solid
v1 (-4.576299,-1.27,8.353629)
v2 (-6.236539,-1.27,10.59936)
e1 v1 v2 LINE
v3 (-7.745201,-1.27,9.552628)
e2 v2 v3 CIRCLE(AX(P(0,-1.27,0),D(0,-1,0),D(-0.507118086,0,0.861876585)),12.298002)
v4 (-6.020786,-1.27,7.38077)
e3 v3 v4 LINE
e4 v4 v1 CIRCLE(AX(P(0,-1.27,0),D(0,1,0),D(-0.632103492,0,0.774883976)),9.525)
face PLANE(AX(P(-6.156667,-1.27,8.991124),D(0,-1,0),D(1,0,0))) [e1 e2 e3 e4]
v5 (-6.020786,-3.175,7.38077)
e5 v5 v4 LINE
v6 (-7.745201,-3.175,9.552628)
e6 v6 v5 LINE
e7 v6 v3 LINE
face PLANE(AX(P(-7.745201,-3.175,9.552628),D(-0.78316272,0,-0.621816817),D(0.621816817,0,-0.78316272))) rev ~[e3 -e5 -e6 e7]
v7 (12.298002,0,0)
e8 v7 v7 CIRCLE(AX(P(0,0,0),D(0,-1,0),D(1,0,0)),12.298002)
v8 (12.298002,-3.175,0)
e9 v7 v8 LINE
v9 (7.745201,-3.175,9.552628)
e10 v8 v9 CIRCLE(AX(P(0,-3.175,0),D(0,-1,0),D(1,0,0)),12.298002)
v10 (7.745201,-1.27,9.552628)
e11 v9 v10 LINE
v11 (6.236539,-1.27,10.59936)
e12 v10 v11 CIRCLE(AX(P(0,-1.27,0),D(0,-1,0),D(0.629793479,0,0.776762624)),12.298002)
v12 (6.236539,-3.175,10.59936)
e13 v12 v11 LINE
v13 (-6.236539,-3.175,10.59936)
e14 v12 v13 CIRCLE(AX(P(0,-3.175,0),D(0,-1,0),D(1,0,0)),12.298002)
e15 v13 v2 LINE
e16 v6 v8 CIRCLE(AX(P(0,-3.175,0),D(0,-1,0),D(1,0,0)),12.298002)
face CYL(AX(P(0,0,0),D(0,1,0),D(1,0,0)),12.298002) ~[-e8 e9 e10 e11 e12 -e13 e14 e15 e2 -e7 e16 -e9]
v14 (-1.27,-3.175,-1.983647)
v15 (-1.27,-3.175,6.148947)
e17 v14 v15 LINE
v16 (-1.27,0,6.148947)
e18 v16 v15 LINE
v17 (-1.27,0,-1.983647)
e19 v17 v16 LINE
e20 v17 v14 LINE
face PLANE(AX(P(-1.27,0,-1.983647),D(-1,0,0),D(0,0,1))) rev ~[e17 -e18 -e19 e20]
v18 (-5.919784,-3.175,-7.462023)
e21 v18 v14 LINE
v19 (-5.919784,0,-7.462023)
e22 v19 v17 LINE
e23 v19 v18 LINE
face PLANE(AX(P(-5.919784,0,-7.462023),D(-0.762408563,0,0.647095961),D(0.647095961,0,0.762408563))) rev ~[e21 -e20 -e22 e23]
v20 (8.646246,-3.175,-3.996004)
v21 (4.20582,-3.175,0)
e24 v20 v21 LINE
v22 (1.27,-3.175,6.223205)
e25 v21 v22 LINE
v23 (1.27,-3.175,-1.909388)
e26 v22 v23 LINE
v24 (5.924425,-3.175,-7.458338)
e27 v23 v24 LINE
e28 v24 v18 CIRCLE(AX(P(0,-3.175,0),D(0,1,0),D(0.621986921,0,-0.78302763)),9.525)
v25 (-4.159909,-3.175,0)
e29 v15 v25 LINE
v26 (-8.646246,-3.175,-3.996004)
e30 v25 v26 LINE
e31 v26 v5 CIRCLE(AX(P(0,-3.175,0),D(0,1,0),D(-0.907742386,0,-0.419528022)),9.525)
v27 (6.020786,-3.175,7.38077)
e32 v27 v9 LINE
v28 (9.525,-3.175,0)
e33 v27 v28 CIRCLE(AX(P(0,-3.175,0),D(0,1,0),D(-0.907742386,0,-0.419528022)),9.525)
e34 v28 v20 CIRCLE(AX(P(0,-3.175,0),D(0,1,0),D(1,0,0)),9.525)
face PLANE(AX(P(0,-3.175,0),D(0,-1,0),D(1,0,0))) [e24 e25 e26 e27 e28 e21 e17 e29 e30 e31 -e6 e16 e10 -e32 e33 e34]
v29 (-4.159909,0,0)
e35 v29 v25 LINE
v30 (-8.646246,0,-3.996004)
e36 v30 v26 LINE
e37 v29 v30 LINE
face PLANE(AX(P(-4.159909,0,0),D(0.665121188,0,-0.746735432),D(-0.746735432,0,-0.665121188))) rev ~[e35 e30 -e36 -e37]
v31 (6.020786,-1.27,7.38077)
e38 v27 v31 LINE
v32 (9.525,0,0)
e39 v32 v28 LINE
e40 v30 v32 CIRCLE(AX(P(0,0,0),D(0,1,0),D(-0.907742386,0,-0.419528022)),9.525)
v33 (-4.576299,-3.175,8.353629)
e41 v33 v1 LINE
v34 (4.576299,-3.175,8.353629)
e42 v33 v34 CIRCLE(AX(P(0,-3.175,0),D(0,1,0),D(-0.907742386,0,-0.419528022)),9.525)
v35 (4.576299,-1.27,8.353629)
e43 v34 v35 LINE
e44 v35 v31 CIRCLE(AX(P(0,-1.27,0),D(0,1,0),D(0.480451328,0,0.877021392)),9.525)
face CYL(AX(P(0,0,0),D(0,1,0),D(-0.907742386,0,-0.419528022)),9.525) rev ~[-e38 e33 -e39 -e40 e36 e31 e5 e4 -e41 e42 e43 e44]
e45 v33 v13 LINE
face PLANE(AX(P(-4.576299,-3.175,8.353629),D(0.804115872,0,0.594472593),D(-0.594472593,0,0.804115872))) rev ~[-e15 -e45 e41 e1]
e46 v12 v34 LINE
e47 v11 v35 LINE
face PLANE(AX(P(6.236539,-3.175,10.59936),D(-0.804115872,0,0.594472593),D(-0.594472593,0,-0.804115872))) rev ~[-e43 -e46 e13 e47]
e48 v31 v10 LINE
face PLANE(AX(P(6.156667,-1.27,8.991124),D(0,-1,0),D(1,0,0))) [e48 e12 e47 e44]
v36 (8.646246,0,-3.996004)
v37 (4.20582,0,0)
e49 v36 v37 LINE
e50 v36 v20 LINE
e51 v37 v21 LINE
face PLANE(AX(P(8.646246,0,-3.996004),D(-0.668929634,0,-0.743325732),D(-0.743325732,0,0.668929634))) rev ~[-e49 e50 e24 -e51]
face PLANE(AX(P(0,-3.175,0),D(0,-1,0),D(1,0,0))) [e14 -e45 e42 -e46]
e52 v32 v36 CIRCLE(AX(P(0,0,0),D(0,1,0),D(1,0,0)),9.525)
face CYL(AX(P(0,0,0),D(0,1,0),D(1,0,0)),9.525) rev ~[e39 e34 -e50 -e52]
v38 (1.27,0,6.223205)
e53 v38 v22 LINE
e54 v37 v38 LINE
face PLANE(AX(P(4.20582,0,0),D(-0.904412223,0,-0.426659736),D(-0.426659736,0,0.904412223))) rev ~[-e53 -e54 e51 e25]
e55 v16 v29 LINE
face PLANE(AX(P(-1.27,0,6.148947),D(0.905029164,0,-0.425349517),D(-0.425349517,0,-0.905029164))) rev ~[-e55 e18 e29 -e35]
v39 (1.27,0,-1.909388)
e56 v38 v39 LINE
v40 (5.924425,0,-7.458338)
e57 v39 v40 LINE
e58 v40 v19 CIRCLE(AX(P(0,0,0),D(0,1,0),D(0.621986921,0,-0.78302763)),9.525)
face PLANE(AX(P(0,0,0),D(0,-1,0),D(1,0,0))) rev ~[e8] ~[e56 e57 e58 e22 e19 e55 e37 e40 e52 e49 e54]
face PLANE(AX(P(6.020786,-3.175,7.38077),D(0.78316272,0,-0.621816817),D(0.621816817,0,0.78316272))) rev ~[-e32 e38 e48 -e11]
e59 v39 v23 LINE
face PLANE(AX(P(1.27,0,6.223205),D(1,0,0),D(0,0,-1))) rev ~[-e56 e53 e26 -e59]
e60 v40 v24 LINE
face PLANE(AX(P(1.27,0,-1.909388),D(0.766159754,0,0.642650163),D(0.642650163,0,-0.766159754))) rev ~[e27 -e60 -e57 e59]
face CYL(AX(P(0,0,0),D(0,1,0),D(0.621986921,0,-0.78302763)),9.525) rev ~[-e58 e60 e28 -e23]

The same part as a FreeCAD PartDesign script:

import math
import FreeCAD as App
import Part
import Sketcher

V = App.Vector
Q = App.Units.Quantity

doc = App.newDocument("Part")
body = doc.addObject("PartDesign::Body", "Body")

# Sketch on XZ plane
sketch1 = body.newObject("Sketcher::SketchObject", "Sketch")
sketch1.AttachmentSupport = (doc.getObject("XZ_Plane"), [""])
sketch1.MapMode = "FlatFace"
sketch1.addGeometry(Part.Circle(V(0, 0, 0), V(0, 0, 1), 12.3), False)
sketch1.addGeometry(Part.ArcOfCircle(Part.Circle(V(0, 0, 0), V(0, 0, 1), 9.5), math.radians(0), math.radians(205)), False)
sketch1.addGeometry(Part.ArcOfCircle(Part.Circle(V(0, 0, 0), V(0, 0, 1), 9.5), math.radians(-25), math.radians(0)), False)
sketch1.addGeometry(Part.LineSegment(V(8.6, -4, 0), V(4.2, 0, 0)), False)
sketch1.addGeometry(Part.LineSegment(V(4.2, 0, 0), V(1.3, 6.2, 0)), False)
sketch1.addGeometry(Part.LineSegment(V(1.3, 6.2, 0), V(1.3, -1.9, 0)), False)
sketch1.addGeometry(Part.LineSegment(V(1.3, -1.9, 0), V(5.9, -7.5, 0)), False)
sketch1.addGeometry(Part.ArcOfCircle(Part.Circle(V(0, 0, 0), V(0, 0, 1), 9.5), math.radians(-128), math.radians(-52)), False)
sketch1.addGeometry(Part.LineSegment(V(-5.9, -7.5, 0), V(-1.3, -2, 0)), False)
sketch1.addGeometry(Part.LineSegment(V(-1.3, -2, 0), V(-1.3, 6.1, 0)), False)
sketch1.addGeometry(Part.LineSegment(V(-1.3, 6.1, 0), V(-4.2, 0, 0)), False)
sketch1.addGeometry(Part.LineSegment(V(-4.2, 0, 0), V(-8.6, -4, 0)), False)
sketch1.addConstraint(Sketcher.Constraint("Tangent", 1, 1, 2, 2))
sketch1.addConstraint(Sketcher.Constraint("Coincident", 2, 1, 3, 1))
sketch1.addConstraint(Sketcher.Constraint("Coincident", 3, 2, 4, 1))
sketch1.addConstraint(Sketcher.Constraint("Coincident", 4, 2, 5, 1))
sketch1.addConstraint(Sketcher.Constraint("Coincident", 5, 2, 6, 1))
sketch1.addConstraint(Sketcher.Constraint("Coincident", 6, 2, 7, 2))
sketch1.addConstraint(Sketcher.Constraint("Coincident", 7, 1, 8, 1))
sketch1.addConstraint(Sketcher.Constraint("Coincident", 8, 2, 9, 1))
sketch1.addConstraint(Sketcher.Constraint("Coincident", 9, 2, 10, 1))
sketch1.addConstraint(Sketcher.Constraint("Coincident", 10, 2, 11, 1))
sketch1.addConstraint(Sketcher.Constraint("Coincident", 11, 2, 1, 2))
sketch1.addConstraint(Sketcher.Constraint("Vertical", 5))
sketch1.addConstraint(Sketcher.Constraint("Vertical", 9))
sketch1.addConstraint(Sketcher.Constraint("Coincident", 0, 3, -1, 1))
sketch1.addConstraint(Sketcher.Constraint("Coincident", 1, 3, -1, 1))
sketch1.addConstraint(Sketcher.Constraint("Coincident", 7, 3, -1, 1))
sketch1.addConstraint(Sketcher.Constraint("Equal", 1, 2))
sketch1.addConstraint(Sketcher.Constraint("Equal", 2, 7))
sketch1.addConstraint(Sketcher.Constraint("PointOnObject", 1, 1, -1))
sketch1.addConstraint(Sketcher.Constraint("PointOnObject", 3, 2, -1))
sketch1.addConstraint(Sketcher.Constraint("PointOnObject", 10, 2, -1))
sketch1.addConstraint(Sketcher.Constraint("Horizontal", 2, 1, 11, 2))
sketch1.addConstraint(Sketcher.Constraint("Equal", 5, 9))
sketch1.addConstraint(Sketcher.Constraint("Radius", 1, Q("0.375 in")))
sketch1.addConstraint(Sketcher.Constraint("DistanceX", 8, 2, 5, 2, Q("0.1 in")))
sketch1.addConstraint(Sketcher.Constraint("DistanceX", -1, 1, 4, 2, Q("0.05 in")))
sketch1.addConstraint(Sketcher.Constraint("Diameter", 0, Q("24.596003 mm")))
sketch1.addConstraint(Sketcher.Constraint("Distance", 3, Q("5.973729 mm")))
sketch1.addConstraint(Sketcher.Constraint("Distance", 4, Q("6.880939 mm")))
sketch1.addConstraint(Sketcher.Constraint("Distance", 6, Q("7.242549 mm")))
sketch1.addConstraint(Sketcher.Constraint("DistanceY", 5, 2, 5, 1, Q("8.132594 mm")))
sketch1.addConstraint(Sketcher.Constraint("DistanceX", -1, 1, 3, 2, Q("4.20582 mm")))
sketch1.addConstraint(Sketcher.Constraint("DistanceX", 10, 2, -1, 1, Q("4.159909 mm")))
sketch1.addConstraint(Sketcher.Constraint("DistanceY", 8, 2, 5, 2, Q("0.074258 mm")))
sketch1.addConstraint(Sketcher.Constraint("DistanceY", 7, 1, 11, 2, Q("3.466018 mm")))
pad1 = body.newObject("PartDesign::Pad", "Pad")
pad1.Profile = sketch1
pad1.Length = Q("0.125 in")

# Sketch on XZ plane
sketch2 = body.newObject("Sketcher::SketchObject", "Sketch001")
sketch2.AttachmentSupport = (doc.getObject("XZ_Plane"), [""])
sketch2.MapMode = "FlatFace"
sketch2.AttachmentOffset = App.Placement(V(0, 0, 0.125 * 25.4), App.Rotation())
sketch2.addGeometry(Part.ArcOfCircle(Part.Circle(V(0, 0, 0), V(0, 0, 1), 9.5), math.radians(118.71), math.radians(129.21)), False)
sketch2.addGeometry(Part.LineSegment(V(-4.6, 8.4, 0), V(-6.2, 10.6, 0)), False)
sketch2.addGeometry(Part.ArcOfCircle(Part.Circle(V(0, 0, 0), V(0, 0, 1), 12.3), math.radians(120.47), math.radians(129.03)), False)
sketch2.addGeometry(Part.LineSegment(V(-7.7, 9.6, 0), V(-6, 7.4, 0)), False)
sketch2.addGeometry(Part.LineSegment(V(6.2, 10.6, 0), V(4.6, 8.4, 0)), False)
sketch2.addGeometry(Part.ArcOfCircle(Part.Circle(V(0, 0, 0), V(0, 0, 1), 9.5), math.radians(50.79), math.radians(61.29)), False)
sketch2.addGeometry(Part.LineSegment(V(6, 7.4, 0), V(7.7, 9.6, 0)), False)
sketch2.addGeometry(Part.ArcOfCircle(Part.Circle(V(0, 0, 0), V(0, 0, 1), 12.3), math.radians(50.97), math.radians(59.53)), False)
sketch2.addConstraint(Sketcher.Constraint("Coincident", 0, 1, 1, 1))
sketch2.addConstraint(Sketcher.Constraint("Coincident", 1, 2, 2, 1))
sketch2.addConstraint(Sketcher.Constraint("Coincident", 2, 2, 3, 1))
sketch2.addConstraint(Sketcher.Constraint("Coincident", 3, 2, 0, 2))
sketch2.addConstraint(Sketcher.Constraint("Coincident", 4, 2, 5, 2))
sketch2.addConstraint(Sketcher.Constraint("Coincident", 5, 1, 6, 1))
sketch2.addConstraint(Sketcher.Constraint("Coincident", 6, 2, 7, 1))
sketch2.addConstraint(Sketcher.Constraint("Coincident", 7, 2, 4, 1))
sketch2.addConstraint(Sketcher.Constraint("Coincident", 0, 3, -1, 1))
sketch2.addConstraint(Sketcher.Constraint("Coincident", 2, 3, -1, 1))
sketch2.addConstraint(Sketcher.Constraint("Coincident", 5, 3, -1, 1))
sketch2.addConstraint(Sketcher.Constraint("Coincident", 7, 3, -1, 1))
sketch2.addConstraint(Sketcher.Constraint("Equal", 0, 5))
sketch2.addConstraint(Sketcher.Constraint("Equal", 2, 7))
sketch2.addConstraint(Sketcher.Constraint("Horizontal", 0, 1, 4, 2))
sketch2.addConstraint(Sketcher.Constraint("Horizontal", 3, 2, 5, 1))
sketch2.addConstraint(Sketcher.Constraint("Horizontal", 2, 2, 6, 2))
sketch2.addConstraint(Sketcher.Constraint("Horizontal", 1, 2, 7, 2))
sketch2.addConstraint(Sketcher.Constraint("Radius", 0, Q("0.375 in")))
sketch2.addConstraint(Sketcher.Constraint("Radius", 2, Q("12.298002 mm")))
sketch2.addConstraint(Sketcher.Constraint("DistanceX", 0, 1, -1, 1, Q("4.576299 mm")))
sketch2.addConstraint(Sketcher.Constraint("DistanceX", 2, 2, -1, 1, Q("7.745201 mm")))
sketch2.addConstraint(Sketcher.Constraint("Distance", 3, Q("2.773189 mm")))
sketch2.addConstraint(Sketcher.Constraint("DistanceX", 1, 2, -1, 1, Q("6.236539 mm")))
pocket1 = body.newObject("PartDesign::Pocket", "Pocket")
pocket1.Profile = sketch2
pocket1.Length = Q("0.075 in")

doc.recompute()
